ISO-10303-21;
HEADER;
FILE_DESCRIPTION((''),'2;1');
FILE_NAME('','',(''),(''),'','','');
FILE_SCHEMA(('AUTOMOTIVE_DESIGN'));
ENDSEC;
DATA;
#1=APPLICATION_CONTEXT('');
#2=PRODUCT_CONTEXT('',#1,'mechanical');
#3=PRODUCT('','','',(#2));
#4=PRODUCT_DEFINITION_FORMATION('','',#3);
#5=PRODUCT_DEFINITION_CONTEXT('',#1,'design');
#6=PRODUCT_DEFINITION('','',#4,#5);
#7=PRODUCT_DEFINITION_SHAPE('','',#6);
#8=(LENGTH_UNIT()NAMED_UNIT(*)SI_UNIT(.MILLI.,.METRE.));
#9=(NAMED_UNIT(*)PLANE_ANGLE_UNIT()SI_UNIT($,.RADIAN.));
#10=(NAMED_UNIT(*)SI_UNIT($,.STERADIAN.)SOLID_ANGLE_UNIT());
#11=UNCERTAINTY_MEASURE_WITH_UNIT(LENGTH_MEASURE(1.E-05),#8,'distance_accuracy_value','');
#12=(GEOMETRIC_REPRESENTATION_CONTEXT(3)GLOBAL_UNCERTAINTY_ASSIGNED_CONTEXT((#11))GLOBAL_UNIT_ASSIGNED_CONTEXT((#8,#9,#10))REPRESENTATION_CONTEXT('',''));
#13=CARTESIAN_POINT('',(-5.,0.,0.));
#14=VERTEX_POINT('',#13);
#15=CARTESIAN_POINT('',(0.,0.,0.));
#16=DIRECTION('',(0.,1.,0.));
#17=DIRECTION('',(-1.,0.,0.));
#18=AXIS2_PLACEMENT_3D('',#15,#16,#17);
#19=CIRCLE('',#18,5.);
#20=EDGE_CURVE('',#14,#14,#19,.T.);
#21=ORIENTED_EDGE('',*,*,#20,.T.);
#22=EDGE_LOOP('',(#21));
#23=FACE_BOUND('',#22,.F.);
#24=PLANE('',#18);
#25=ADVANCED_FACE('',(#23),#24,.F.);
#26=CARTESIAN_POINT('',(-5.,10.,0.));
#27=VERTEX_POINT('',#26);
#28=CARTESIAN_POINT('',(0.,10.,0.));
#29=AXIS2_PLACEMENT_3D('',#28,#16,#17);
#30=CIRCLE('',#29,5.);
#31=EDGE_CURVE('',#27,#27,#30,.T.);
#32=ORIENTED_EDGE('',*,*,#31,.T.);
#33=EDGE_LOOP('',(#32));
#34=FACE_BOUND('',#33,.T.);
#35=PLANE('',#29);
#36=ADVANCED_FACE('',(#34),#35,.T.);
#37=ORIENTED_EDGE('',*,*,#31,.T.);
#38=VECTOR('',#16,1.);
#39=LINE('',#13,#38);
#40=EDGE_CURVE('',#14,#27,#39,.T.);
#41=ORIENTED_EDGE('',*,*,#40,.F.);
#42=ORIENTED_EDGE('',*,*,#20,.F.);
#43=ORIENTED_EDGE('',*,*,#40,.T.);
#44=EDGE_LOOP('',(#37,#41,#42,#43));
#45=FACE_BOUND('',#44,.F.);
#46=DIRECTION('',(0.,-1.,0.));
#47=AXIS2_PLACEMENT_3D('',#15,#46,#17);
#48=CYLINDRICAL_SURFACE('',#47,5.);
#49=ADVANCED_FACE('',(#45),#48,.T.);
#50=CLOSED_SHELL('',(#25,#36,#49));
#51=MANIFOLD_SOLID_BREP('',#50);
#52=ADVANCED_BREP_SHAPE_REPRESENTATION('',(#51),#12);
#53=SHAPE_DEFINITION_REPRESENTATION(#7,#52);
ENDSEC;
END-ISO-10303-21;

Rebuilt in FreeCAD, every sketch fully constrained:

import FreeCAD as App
import Part
import Sketcher
from FreeCAD import Vector
Q = App.Units.Quantity

doc = App.newDocument("Part")
body = doc.addObject("PartDesign::Body", "Body")

sketch1 = doc.addObject("Sketcher::SketchObject", "Sketch")
body.addObject(sketch1)
sketch1.AttachmentSupport = (doc.XZ_Plane, [""])
sketch1.MapMode = "FlatFace"
sketch1.addGeometry(Part.Circle(Vector(0, 0, 0), Vector(0, 0, 1), 5), False)
sketch1.addConstraint([
    Sketcher.Constraint("Coincident", 0, 3, -1, 1),
    Sketcher.Constraint("Diameter", 0, Q("10 mm")),
])
pad1 = doc.addObject("PartDesign::Pad", "Pad")
body.addObject(pad1)
pad1.Profile = sketch1
pad1.Length = 10
pad1.Reversed = True

doc.recompute()
